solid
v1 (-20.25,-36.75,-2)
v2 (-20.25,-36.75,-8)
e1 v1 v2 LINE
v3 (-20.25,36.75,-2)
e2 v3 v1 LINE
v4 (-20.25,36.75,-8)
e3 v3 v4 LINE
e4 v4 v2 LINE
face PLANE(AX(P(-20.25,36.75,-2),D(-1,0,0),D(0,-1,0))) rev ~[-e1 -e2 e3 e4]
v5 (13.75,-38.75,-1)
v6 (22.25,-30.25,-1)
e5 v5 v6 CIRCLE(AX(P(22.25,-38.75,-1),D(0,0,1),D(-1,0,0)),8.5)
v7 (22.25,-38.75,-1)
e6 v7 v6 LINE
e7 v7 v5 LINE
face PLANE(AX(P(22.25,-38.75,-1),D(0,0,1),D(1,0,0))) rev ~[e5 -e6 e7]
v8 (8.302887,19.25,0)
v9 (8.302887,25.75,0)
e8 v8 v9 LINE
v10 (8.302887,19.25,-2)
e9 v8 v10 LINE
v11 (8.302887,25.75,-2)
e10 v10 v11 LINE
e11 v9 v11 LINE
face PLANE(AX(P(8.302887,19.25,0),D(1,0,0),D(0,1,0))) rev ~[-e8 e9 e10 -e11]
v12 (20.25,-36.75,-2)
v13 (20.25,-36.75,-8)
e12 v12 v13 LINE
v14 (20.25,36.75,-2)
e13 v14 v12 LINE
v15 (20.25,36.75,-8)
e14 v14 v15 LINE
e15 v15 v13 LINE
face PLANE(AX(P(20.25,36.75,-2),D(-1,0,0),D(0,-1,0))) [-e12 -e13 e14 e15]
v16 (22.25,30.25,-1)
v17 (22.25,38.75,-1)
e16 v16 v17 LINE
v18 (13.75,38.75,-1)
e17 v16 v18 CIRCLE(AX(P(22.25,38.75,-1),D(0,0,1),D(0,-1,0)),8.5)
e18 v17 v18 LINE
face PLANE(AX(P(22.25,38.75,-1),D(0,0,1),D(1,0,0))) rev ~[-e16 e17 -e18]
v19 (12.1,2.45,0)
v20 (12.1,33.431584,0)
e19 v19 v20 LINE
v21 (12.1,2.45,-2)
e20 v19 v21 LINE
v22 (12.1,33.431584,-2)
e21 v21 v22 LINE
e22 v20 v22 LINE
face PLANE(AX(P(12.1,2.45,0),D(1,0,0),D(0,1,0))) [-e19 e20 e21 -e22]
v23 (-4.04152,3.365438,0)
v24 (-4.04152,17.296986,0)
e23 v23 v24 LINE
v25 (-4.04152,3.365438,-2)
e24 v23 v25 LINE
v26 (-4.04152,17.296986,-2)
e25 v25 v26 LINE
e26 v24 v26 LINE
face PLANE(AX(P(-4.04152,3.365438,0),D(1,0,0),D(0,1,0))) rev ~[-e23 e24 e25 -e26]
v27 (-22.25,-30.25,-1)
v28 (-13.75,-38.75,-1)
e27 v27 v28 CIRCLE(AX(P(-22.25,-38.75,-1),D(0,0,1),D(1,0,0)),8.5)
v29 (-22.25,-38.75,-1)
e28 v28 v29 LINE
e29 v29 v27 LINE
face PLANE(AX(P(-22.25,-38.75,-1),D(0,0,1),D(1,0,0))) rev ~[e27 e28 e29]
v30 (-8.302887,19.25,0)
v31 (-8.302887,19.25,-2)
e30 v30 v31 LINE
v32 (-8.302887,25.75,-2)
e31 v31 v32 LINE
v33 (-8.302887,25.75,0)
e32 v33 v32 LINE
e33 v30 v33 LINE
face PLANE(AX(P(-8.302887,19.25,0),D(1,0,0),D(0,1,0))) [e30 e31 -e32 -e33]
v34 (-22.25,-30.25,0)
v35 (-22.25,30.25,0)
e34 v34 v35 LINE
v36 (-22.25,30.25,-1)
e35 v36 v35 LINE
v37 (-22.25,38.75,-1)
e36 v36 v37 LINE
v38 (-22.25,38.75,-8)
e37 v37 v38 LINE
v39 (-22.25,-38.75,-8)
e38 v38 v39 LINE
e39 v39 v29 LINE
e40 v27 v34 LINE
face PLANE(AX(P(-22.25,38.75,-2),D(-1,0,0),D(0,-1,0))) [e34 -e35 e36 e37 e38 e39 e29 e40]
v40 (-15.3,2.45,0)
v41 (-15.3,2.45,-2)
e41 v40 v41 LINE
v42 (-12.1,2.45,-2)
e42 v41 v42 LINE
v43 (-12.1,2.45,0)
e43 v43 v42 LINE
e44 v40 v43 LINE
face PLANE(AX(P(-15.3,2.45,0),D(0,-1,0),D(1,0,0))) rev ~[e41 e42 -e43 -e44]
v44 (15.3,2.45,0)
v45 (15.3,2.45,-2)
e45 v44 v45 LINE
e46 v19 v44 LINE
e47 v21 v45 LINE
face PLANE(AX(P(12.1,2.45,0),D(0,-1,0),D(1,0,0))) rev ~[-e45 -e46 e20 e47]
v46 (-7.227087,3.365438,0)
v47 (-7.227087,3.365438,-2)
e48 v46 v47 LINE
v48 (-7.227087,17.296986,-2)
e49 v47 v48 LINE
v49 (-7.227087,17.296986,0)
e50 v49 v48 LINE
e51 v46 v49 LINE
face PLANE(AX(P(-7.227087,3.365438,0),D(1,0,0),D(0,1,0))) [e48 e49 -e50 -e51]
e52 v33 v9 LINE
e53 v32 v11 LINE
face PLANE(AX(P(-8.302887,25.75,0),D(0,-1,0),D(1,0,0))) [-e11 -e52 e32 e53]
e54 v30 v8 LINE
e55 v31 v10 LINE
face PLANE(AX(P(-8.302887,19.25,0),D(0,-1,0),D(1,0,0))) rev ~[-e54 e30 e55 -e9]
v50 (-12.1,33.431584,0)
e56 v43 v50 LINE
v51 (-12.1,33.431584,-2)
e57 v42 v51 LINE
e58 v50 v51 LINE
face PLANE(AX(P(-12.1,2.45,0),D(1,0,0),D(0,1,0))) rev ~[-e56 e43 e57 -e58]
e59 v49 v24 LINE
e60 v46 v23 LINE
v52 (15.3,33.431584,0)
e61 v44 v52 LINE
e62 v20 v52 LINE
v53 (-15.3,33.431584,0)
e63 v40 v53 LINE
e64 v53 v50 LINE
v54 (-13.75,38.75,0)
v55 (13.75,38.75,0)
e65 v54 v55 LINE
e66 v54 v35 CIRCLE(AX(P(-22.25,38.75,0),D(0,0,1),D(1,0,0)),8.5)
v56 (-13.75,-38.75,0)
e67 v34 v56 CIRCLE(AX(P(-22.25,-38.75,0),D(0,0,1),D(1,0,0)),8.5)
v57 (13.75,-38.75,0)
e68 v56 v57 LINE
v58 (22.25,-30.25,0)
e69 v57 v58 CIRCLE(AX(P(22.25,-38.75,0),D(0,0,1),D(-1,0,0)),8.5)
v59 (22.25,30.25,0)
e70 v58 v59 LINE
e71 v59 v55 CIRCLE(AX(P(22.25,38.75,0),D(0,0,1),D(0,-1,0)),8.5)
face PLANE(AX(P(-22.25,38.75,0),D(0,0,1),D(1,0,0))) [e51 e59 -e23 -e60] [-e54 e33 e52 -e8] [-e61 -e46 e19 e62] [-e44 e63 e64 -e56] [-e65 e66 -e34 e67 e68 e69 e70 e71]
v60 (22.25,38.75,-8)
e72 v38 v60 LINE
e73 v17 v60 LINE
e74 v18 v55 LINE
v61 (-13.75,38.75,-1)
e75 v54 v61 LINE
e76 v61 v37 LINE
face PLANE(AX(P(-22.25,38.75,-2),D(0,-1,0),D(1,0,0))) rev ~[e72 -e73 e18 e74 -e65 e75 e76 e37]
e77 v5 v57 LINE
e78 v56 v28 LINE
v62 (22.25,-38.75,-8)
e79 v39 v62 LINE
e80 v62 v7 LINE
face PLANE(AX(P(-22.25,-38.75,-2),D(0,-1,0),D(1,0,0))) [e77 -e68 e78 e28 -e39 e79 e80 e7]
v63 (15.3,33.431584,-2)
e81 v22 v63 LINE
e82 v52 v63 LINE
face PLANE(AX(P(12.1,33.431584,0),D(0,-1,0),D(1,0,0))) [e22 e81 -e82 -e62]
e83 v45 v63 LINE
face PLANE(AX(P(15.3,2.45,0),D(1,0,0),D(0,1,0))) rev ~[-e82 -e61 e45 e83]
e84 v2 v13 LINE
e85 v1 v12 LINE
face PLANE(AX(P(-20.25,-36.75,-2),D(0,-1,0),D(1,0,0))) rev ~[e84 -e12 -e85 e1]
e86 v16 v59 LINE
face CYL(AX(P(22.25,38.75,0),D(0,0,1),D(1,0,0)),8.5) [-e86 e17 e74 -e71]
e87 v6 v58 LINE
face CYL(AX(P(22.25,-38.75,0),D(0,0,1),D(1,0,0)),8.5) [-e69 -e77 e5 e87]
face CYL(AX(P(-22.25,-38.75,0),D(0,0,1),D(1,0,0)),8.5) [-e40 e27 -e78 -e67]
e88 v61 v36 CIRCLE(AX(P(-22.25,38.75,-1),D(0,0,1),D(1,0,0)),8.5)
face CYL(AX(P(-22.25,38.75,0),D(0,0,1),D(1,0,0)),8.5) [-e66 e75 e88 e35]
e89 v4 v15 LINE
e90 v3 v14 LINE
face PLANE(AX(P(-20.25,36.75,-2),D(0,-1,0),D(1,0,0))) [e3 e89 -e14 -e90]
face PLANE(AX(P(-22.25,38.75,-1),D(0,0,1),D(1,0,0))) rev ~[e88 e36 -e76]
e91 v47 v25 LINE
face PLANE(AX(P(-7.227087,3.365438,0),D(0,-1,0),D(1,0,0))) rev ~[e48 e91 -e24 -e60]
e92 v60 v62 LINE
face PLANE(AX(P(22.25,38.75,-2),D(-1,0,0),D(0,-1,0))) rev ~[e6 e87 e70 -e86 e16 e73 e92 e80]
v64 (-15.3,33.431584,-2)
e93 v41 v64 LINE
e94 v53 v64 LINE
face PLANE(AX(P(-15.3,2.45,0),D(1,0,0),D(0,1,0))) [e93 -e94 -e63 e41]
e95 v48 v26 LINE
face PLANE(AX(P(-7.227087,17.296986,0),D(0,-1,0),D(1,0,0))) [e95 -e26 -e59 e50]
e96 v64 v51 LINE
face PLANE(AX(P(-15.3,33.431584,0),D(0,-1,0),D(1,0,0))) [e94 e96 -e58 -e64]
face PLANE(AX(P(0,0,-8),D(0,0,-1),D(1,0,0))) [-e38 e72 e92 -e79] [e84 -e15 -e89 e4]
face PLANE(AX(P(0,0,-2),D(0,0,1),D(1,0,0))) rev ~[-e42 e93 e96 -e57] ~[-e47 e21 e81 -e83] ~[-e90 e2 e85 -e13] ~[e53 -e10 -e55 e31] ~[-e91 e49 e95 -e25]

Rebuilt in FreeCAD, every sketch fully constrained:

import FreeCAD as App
import Part
import Sketcher

V = App.Vector


def add_polygon(sketch, points):
    """Adds a closed chain of lines whose ends are joined by coincident constraints."""
    first, n = sketch.GeometryCount, len(points)
    for a, b in zip(points, points[1:] + points[:1]):
        sketch.addGeometry(Part.LineSegment(App.Vector(*a, 0), App.Vector(*b, 0)), False)
    for i in range(n):
        sketch.addConstraint(Sketcher.Constraint("Coincident", first + i, 2, first + (i + 1) % n, 1))

doc = App.newDocument("Part")
body = doc.addObject("PartDesign::Body", "Body")

sketch1 = body.newObject("Sketcher::SketchObject", "Sketch")
sketch1.AttachmentSupport = (doc.getObject("XY_Plane"), [""])
sketch1.MapMode = "FlatFace"
add_polygon(sketch1, [(-22.25, 38.75), (-22.25, -38.75), (22.25, -38.75), (22.25, 38.75)])
add_polygon(sketch1, [(-4.04152, 3.365438), (-7.227087, 3.365438), (-7.227087, 17.296986), (-4.04152, 17.296986)])
add_polygon(sketch1, [(-12.1, 2.45), (-15.3, 2.45), (-15.3, 33.431584), (-12.1, 33.431584)])
add_polygon(sketch1, [(8.302887, 19.25), (-8.302887, 19.25), (-8.302887, 25.75), (8.302887, 25.75)])
add_polygon(sketch1, [(15.3, 2.45), (12.1, 2.45), (12.1, 33.431584), (15.3, 33.431584)])
sketch1.addConstraint(Sketcher.Constraint("Vertical", 0))
sketch1.addConstraint(Sketcher.Constraint("Horizontal", 1))
sketch1.addConstraint(Sketcher.Constraint("Vertical", 2))
sketch1.addConstraint(Sketcher.Constraint("Horizontal", 3))
sketch1.addConstraint(Sketcher.Constraint("Horizontal", 4))
sketch1.addConstraint(Sketcher.Constraint("Vertical", 5))
sketch1.addConstraint(Sketcher.Constraint("Horizontal", 6))
sketch1.addConstraint(Sketcher.Constraint("Vertical", 7))
sketch1.addConstraint(Sketcher.Constraint("Horizontal", 8))
sketch1.addConstraint(Sketcher.Constraint("Vertical", 9))
sketch1.addConstraint(Sketcher.Constraint("Horizontal", 10))
sketch1.addConstraint(Sketcher.Constraint("Vertical", 11))
sketch1.addConstraint(Sketcher.Constraint("Horizontal", 12))
sketch1.addConstraint(Sketcher.Constraint("Vertical", 13))
sketch1.addConstraint(Sketcher.Constraint("Horizontal", 14))
sketch1.addConstraint(Sketcher.Constraint("Vertical", 15))
sketch1.addConstraint(Sketcher.Constraint("Horizontal", 16))
sketch1.addConstraint(Sketcher.Constraint("Vertical", 17))
sketch1.addConstraint(Sketcher.Constraint("Horizontal", 18))
sketch1.addConstraint(Sketcher.Constraint("Vertical", 19))
sketch1.addConstraint(Sketcher.Constraint("Symmetric", 0, 2, 2, 2, -1, 1))
sketch1.addConstraint(Sketcher.Constraint("Symmetric", 11, 2, 16, 2, -2))
sketch1.addConstraint(Sketcher.Constraint("Symmetric", 9, 2, 18, 2, -2))
sketch1.addConstraint(Sketcher.Constraint("DistanceX", 1, 1, 1, 2, 44.5))
sketch1.addConstraint(Sketcher.Constraint("DistanceX", 8, 2, 8, 1, 3.2))
sketch1.addConstraint(Sketcher.Constraint("DistanceY", 0, 2, 0, 1, 77.5))
sketch1.addConstraint(Sketcher.Constraint("DistanceY", 13, 1, 13, 2, 6.5))
sketch1.addConstraint(Sketcher.Constraint("DistanceY", 14, 2, 2, 2, 13.0))
sketch1.addConstraint(Sketcher.Constraint("DistanceX", 8, 2, -1, 1, 15.3))
sketch1.addConstraint(Sketcher.Constraint("DistanceY", 8, 2, 3, 2, 36.3))
sketch1.addConstraint(Sketcher.Constraint("DistanceY", 5, 1, 5, 2, 13.931548))
sketch1.addConstraint(Sketcher.Constraint("DistanceX", 12, 2, 5, 2, 1.0758))
sketch1.addConstraint(Sketcher.Constraint("DistanceX", 4, 2, 4, 1, 3.185567))
sketch1.addConstraint(Sketcher.Constraint("DistanceX", 12, 2, 12, 1, 16.605774))
sketch1.addConstraint(Sketcher.Constraint("DistanceY", 9, 1, 9, 2, 30.981584))
sketch1.addConstraint(Sketcher.Constraint("DistanceX", 6, 2, -1, 1, 4.04152))
sketch1.addConstraint(Sketcher.Constraint("DistanceY", -1, 1, 4, 2, 3.365438))
pad1 = body.newObject("PartDesign::Pad", "Pad")
pad1.Profile = sketch1
pad1.Length = 2
pad1.Reversed = True

sketch2 = body.newObject("Sketcher::SketchObject", "Sketch001")
sketch2.AttachmentSupport = (doc.getObject("XY_Plane"), [""])
sketch2.MapMode = "FlatFace"
sketch2.AttachmentOffset = App.Placement(V(0, 0, -2), App.Rotation())
add_polygon(sketch2, [(-22.25, -38.75), (-22.25, 38.75), (22.25, 38.75), (22.25, -38.75)])
add_polygon(sketch2, [(20.25, 36.75), (-20.25, 36.75), (-20.25, -36.75), (20.25, -36.75)])
sketch2.addConstraint(Sketcher.Constraint("Vertical", 0))
sketch2.addConstraint(Sketcher.Constraint("Horizontal", 1))
sketch2.addConstraint(Sketcher.Constraint("Vertical", 2))
sketch2.addConstraint(Sketcher.Constraint("Horizontal", 3))
sketch2.addConstraint(Sketcher.Constraint("Horizontal", 4))
sketch2.addConstraint(Sketcher.Constraint("Vertical", 5))
sketch2.addConstraint(Sketcher.Constraint("Horizontal", 6))
sketch2.addConstraint(Sketcher.Constraint("Vertical", 7))
sketch2.addConstraint(Sketcher.Constraint("Symmetric", 0, 2, 2, 2, -1, 1))
sketch2.addConstraint(Sketcher.Constraint("Symmetric", 4, 2, 6, 2, -1, 1))
sketch2.addConstraint(Sketcher.Constraint("DistanceX", 1, 1, 1, 2, 44.5))
sketch2.addConstraint(Sketcher.Constraint("DistanceX", 4, 2, 4, 1, 40.5))
sketch2.addConstraint(Sketcher.Constraint("DistanceY", 0, 1, 0, 2, 77.5))
sketch2.addConstraint(Sketcher.Constraint("DistanceY", 5, 2, 5, 1, 73.5))
pad2 = body.newObject("PartDesign::Pad", "Pad001")
pad2.Profile = sketch2
pad2.Length = 6
pad2.Reversed = True

sketch3 = body.newObject("Sketcher::SketchObject", "Sketch002")
sketch3.AttachmentSupport = (doc.getObject("XY_Plane"), [""])
sketch3.MapMode = "FlatFace"
sketch3.addGeometry(Part.Circle(V(-22.25, 38.75, 0), V(0, 0, 1), 8.5), False)
sketch3.addGeometry(Part.Circle(V(22.25, 38.75, 0), V(0, 0, 1), 8.5), False)
sketch3.addGeometry(Part.Circle(V(22.25, -38.75, 0), V(0, 0, 1), 8.5), False)
sketch3.addGeometry(Part.Circle(V(-22.25, -38.75, 0), V(0, 0, 1), 8.5), False)
sketch3.addConstraint(Sketcher.Constraint("Equal", 0, 1))
sketch3.addConstraint(Sketcher.Constraint("Equal", 1, 2))
sketch3.addConstraint(Sketcher.Constraint("Equal", 2, 3))
sketch3.addConstraint(Sketcher.Constraint("Symmetric", 0, 3, 2, 3, -1, 1))
sketch3.addConstraint(Sketcher.Constraint("Symmetric", 1, 3, 3, 3, -1, 1))
sketch3.addConstraint(Sketcher.Constraint("Symmetric", 0, 3, 1, 3, -2))
sketch3.addConstraint(Sketcher.Constraint("Diameter", 0, 17.0))
sketch3.addConstraint(Sketcher.Constraint("DistanceX", 0, 3, 1, 3, 44.5))
sketch3.addConstraint(Sketcher.Constraint("DistanceY", 2, 3, 1, 3, 77.5))
pad3 = body.newObject("PartDesign::Pad", "Pad002")
pad3.Profile = sketch3
pad3.Length = 1
pad3.Reversed = True

doc.recompute()
